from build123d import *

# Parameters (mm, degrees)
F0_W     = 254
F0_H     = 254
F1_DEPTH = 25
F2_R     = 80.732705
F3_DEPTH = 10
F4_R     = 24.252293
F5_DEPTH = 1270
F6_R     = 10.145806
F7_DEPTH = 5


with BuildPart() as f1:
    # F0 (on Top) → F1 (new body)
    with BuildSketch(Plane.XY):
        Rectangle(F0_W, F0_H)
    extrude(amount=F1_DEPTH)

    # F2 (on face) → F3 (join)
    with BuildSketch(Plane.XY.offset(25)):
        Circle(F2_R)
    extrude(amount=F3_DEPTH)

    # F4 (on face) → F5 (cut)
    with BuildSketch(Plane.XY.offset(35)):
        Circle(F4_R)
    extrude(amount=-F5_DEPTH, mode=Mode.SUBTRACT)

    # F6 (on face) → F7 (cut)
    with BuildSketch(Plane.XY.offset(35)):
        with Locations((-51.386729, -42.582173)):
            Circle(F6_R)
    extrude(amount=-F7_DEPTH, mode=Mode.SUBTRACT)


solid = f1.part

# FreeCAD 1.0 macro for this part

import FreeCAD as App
import Part
import Sketcher
Q = App.Units.Quantity

doc = App.newDocument("Part")
body = doc.addObject("PartDesign::Body", "Body")

# Sketch on XY plane
sketch1 = doc.addObject("Sketcher::SketchObject", "Sketch")
body.addObject(sketch1)
sketch1.AttachmentSupport = (doc.XY_Plane, [""])
sketch1.MapMode = "FlatFace"
sketch1.addGeometry([
    Part.LineSegment(App.Vector(-127, 127, 0), App.Vector(-127, -127, 0)),
    Part.LineSegment(App.Vector(-127, -127, 0), App.Vector(127, -127, 0)),
    Part.LineSegment(App.Vector(127, -127, 0), App.Vector(127, 127, 0)),
    Part.LineSegment(App.Vector(127, 127, 0), App.Vector(-127, 127, 0)),
], False)
sketch1.addConstraint([
    Sketcher.Constraint("Coincident", 0, 2, 1, 1),
    Sketcher.Constraint("Coincident", 1, 2, 2, 1),
    Sketcher.Constraint("Coincident", 2, 2, 3, 1),
    Sketcher.Constraint("Coincident", 3, 2, 0, 1),
    Sketcher.Constraint("Vertical", 0),
    Sketcher.Constraint("Horizontal", 1),
    Sketcher.Constraint("Vertical", 2),
    Sketcher.Constraint("Horizontal", 3),
    Sketcher.Constraint("Symmetric", 0, 2, 2, 2, -1, 1),
    Sketcher.Constraint("Equal", 3, 0),
    Sketcher.Constraint("DistanceX", 1, 1, 1, 2, Q("254 mm")),
])
pad1 = doc.addObject("PartDesign::Pad", "Pad")
body.addObject(pad1)
pad1.Profile = sketch1
pad1.Length = 25

# Sketch on XY plane
sketch2 = doc.addObject("Sketcher::SketchObject", "Sketch001")
body.addObject(sketch2)
sketch2.AttachmentSupport = (doc.XY_Plane, [""])
sketch2.MapMode = "FlatFace"
sketch2.AttachmentOffset = App.Placement(App.Vector(0, 0, 25), App.Rotation())
sketch2.addGeometry(Part.Circle(App.Vector(0, 0, 0), App.Vector(0, 0, 1), 80.732705), False)
sketch2.addConstraint([
    Sketcher.Constraint("Coincident", 0, 3, -1, 1),
    Sketcher.Constraint("Diameter", 0, Q("161.46541 mm")),
])
pad2 = doc.addObject("PartDesign::Pad", "Pad001")
body.addObject(pad2)
pad2.Profile = sketch2
pad2.Length = 10

# Sketch on XY plane
sketch3 = doc.addObject("Sketcher::SketchObject", "Sketch002")
body.addObject(sketch3)
sketch3.AttachmentSupport = (doc.XY_Plane, [""])
sketch3.MapMode = "FlatFace"
sketch3.AttachmentOffset = App.Placement(App.Vector(0, 0, 35), App.Rotation())
sketch3.addGeometry(Part.Circle(App.Vector(0, 0, 0), App.Vector(0, 0, 1), 24.252293), False)
sketch3.addConstraint([
    Sketcher.Constraint("Coincident", 0, 3, -1, 1),
    Sketcher.Constraint("Diameter", 0, Q("48.504586 mm")),
])
pocket1 = doc.addObject("PartDesign::Pocket", "Pocket")
body.addObject(pocket1)
pocket1.Profile = sketch3
pocket1.Length = 1270

# Sketch on XY plane
sketch4 = doc.addObject("Sketcher::SketchObject", "Sketch003")
body.addObject(sketch4)
sketch4.AttachmentSupport = (doc.XY_Plane, [""])
sketch4.MapMode = "FlatFace"
sketch4.AttachmentOffset = App.Placement(App.Vector(0, 0, 35), App.Rotation())
sketch4.addGeometry(Part.Circle(App.Vector(-51.386729, -42.582173, 0), App.Vector(0, 0, 1), 10.145806), False)
sketch4.addConstraint([
    Sketcher.Constraint("Diameter", 0, Q("20.291612 mm")),
    Sketcher.Constraint("DistanceX", 0, 3, -1, 1, Q("51.386729 mm")),
    Sketcher.Constraint("DistanceY", 0, 3, -1, 1, Q("42.582173 mm")),
])
pocket2 = doc.addObject("PartDesign::Pocket", "Pocket001")
body.addObject(pocket2)
pocket2.Profile = sketch4
pocket2.Length = 5

doc.recompute()
